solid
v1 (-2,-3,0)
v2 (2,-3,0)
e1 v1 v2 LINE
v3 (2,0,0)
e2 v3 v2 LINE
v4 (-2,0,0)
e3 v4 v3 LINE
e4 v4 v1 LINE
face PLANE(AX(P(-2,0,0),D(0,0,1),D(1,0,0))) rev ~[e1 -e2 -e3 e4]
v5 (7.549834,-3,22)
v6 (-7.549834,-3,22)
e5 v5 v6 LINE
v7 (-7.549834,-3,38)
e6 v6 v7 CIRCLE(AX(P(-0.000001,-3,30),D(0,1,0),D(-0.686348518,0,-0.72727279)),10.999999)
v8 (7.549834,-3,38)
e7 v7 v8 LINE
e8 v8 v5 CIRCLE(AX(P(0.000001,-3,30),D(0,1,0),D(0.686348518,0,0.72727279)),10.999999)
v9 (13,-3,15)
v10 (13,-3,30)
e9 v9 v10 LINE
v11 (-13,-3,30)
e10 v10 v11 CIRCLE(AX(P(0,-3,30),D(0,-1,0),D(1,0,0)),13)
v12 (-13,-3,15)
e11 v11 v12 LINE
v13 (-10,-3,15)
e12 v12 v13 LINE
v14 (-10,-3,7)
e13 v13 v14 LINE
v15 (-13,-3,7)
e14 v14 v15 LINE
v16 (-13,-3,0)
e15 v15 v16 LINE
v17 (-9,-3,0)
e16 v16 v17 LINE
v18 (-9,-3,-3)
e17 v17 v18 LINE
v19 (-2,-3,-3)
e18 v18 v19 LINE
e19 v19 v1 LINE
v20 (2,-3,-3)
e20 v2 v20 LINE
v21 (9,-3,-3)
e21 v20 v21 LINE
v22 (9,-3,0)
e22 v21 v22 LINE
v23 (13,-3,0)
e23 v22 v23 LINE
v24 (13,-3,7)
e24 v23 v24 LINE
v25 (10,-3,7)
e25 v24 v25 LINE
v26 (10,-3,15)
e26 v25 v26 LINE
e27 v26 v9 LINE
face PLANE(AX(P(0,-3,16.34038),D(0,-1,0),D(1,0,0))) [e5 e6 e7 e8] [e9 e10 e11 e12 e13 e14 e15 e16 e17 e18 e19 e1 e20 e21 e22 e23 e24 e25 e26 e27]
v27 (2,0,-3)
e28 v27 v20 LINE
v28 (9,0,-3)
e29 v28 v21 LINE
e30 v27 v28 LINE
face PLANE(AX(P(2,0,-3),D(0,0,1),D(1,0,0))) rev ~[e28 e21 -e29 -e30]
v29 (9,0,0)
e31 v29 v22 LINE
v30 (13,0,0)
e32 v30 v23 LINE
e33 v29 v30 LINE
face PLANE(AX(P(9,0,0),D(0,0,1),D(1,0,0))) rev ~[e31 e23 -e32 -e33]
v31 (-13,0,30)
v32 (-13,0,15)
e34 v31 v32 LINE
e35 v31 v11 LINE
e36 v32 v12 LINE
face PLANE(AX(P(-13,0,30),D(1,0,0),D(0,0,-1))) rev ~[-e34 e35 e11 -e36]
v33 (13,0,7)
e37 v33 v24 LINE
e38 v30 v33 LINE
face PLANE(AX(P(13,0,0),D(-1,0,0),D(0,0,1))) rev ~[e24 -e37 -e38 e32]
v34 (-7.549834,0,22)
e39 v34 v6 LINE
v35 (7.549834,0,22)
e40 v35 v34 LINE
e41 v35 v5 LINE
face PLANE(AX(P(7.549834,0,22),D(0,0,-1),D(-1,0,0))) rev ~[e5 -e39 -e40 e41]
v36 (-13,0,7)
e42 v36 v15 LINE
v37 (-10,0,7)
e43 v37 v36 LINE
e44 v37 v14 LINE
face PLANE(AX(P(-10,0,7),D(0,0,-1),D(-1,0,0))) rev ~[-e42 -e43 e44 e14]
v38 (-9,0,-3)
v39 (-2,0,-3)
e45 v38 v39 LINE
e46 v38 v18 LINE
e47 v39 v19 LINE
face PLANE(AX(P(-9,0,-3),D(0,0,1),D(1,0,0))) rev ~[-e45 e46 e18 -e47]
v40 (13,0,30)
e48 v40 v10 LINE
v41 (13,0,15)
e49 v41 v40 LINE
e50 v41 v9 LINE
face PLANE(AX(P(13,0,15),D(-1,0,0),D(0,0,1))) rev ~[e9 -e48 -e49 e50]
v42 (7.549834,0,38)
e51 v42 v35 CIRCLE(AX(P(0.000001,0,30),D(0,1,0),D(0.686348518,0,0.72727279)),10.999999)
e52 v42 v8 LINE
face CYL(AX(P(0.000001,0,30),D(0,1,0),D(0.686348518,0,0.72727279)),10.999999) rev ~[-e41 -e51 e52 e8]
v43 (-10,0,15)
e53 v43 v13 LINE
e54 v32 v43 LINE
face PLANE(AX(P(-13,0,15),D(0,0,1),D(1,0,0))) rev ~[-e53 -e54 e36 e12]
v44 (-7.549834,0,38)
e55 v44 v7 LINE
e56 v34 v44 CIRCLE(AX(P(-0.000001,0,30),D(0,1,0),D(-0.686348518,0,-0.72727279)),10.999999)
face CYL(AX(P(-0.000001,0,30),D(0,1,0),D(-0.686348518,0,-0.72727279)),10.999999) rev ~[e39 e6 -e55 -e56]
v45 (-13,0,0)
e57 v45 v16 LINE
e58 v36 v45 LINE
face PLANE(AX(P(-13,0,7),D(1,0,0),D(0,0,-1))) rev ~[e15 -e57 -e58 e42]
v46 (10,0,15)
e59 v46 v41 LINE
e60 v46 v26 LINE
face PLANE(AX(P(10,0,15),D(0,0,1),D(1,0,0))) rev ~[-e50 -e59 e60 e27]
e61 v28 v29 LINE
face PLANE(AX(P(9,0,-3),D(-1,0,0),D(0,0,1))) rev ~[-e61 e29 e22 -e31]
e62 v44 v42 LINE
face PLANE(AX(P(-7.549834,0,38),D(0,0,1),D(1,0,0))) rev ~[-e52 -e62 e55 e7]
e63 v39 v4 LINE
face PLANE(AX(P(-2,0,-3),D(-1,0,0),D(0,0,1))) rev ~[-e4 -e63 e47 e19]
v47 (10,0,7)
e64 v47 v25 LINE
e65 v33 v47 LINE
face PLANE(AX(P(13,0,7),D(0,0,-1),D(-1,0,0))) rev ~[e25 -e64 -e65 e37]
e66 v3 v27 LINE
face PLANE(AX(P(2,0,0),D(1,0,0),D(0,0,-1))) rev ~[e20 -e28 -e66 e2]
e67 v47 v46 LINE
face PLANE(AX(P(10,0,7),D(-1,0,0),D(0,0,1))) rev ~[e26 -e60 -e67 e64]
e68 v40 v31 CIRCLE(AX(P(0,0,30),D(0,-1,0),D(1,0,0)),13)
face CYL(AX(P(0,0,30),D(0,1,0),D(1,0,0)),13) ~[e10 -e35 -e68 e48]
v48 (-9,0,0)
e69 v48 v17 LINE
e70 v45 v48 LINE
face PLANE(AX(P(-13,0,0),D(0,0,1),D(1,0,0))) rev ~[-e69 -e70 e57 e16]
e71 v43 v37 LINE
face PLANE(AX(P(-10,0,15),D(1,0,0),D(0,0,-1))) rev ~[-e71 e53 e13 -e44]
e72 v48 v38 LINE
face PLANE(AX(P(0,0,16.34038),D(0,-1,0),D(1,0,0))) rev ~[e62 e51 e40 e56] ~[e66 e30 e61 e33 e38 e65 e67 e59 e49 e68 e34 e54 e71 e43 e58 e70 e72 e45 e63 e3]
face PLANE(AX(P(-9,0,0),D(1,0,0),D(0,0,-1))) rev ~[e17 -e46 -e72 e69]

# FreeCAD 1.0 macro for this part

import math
import FreeCAD as App
import Part
import Sketcher
from FreeCAD import Vector

doc = App.newDocument("Part")
body = doc.addObject("PartDesign::Body", "Body")

# Sketch on XZ plane
sketch1 = body.newObject("Sketcher::SketchObject", "Sketch")
sketch1.AttachmentSupport = (doc.getObject("XZ_Plane"), [""])
sketch1.MapMode = "FlatFace"
sketch1.addGeometry([
    Part.LineSegment(Vector(13, 15, 0), Vector(13, 30, 0)),  # 0
    Part.ArcOfCircle(Part.Circle(Vector(0, 30, 0), Vector(0, 0, 1), 13), math.radians(0), math.radians(180)),  # 1
    Part.LineSegment(Vector(-13, 30, 0), Vector(-13, 15, 0)),  # 2
    Part.LineSegment(Vector(-13, 15, 0), Vector(-10, 15, 0)),  # 3
    Part.LineSegment(Vector(-10, 15, 0), Vector(-10, 7, 0)),  # 4
    Part.LineSegment(Vector(-10, 7, 0), Vector(-13, 7, 0)),  # 5
    Part.LineSegment(Vector(-13, 7, 0), Vector(-13, 0, 0)),  # 6
    Part.LineSegment(Vector(-13, 0, 0), Vector(-9, 0, 0)),  # 7
    Part.LineSegment(Vector(-9, 0, 0), Vector(-9, -3, 0)),  # 8
    Part.LineSegment(Vector(-9, -3, 0), Vector(-2, -3, 0)),  # 9
    Part.LineSegment(Vector(-2, -3, 0), Vector(-2, 0, 0)),  # 10
    Part.LineSegment(Vector(-2, 0, 0), Vector(2, 0, 0)),  # 11
    Part.LineSegment(Vector(2, 0, 0), Vector(2, -3, 0)),  # 12
    Part.LineSegment(Vector(2, -3, 0), Vector(9, -3, 0)),  # 13
    Part.LineSegment(Vector(9, -3, 0), Vector(9, 0, 0)),  # 14
    Part.LineSegment(Vector(9, 0, 0), Vector(13, 0, 0)),  # 15
    Part.LineSegment(Vector(13, 0, 0), Vector(13, 7, 0)),  # 16
    Part.LineSegment(Vector(13, 7, 0), Vector(10, 7, 0)),  # 17
    Part.LineSegment(Vector(10, 7, 0), Vector(10, 15, 0)),  # 18
    Part.LineSegment(Vector(10, 15, 0), Vector(13, 15, 0)),  # 19
    Part.LineSegment(Vector(7.5, 22, 0), Vector(-7.5, 22, 0)),  # 20
    Part.ArcOfCircle(Part.Circle(Vector(0, 30, 0), Vector(0, 0, 1), 11), math.radians(133), math.radians(227)),  # 21
    Part.LineSegment(Vector(-7.5, 38, 0), Vector(7.5, 38, 0)),  # 22
    Part.ArcOfCircle(Part.Circle(Vector(0, 30, 0), Vector(0, 0, 1), 11), math.radians(-47), math.radians(47)),  # 23
], False)
sketch1.addConstraint([
    Sketcher.Constraint("Tangent", 0, 2, 1, 1),
    Sketcher.Constraint("Tangent", 1, 2, 2, 1),
    Sketcher.Constraint("Coincident", 2, 2, 3, 1),
    Sketcher.Constraint("Coincident", 3, 2, 4, 1),
    Sketcher.Constraint("Coincident", 4, 2, 5, 1),
    Sketcher.Constraint("Coincident", 5, 2, 6, 1),
    Sketcher.Constraint("Coincident", 6, 2, 7, 1),
    Sketcher.Constraint("Coincident", 7, 2, 8, 1),
    Sketcher.Constraint("Coincident", 8, 2, 9, 1),
    Sketcher.Constraint("Coincident", 9, 2, 10, 1),
    Sketcher.Constraint("Coincident", 10, 2, 11, 1),
    Sketcher.Constraint("Coincident", 11, 2, 12, 1),
    Sketcher.Constraint("Coincident", 12, 2, 13, 1),
    Sketcher.Constraint("Coincident", 13, 2, 14, 1),
    Sketcher.Constraint("Coincident", 14, 2, 15, 1),
    Sketcher.Constraint("Coincident", 15, 2, 16, 1),
    Sketcher.Constraint("Coincident", 16, 2, 17, 1),
    Sketcher.Constraint("Coincident", 17, 2, 18, 1),
    Sketcher.Constraint("Coincident", 18, 2, 19, 1),
    Sketcher.Constraint("Coincident", 19, 2, 0, 1),
    Sketcher.Constraint("Coincident", 20, 2, 21, 2),
    Sketcher.Constraint("Coincident", 21, 1, 22, 1),
    Sketcher.Constraint("Coincident", 22, 2, 23, 2),
    Sketcher.Constraint("Coincident", 23, 1, 20, 1),
    Sketcher.Constraint("Vertical", 0),
    Sketcher.Constraint("Vertical", 2),
    Sketcher.Constraint("Horizontal", 3),
    Sketcher.Constraint("Vertical", 4),
    Sketcher.Constraint("Horizontal", 5),
    Sketcher.Constraint("Vertical", 6),
    Sketcher.Constraint("Horizontal", 7),
    Sketcher.Constraint("Vertical", 8),
    Sketcher.Constraint("Horizontal", 9),
    Sketcher.Constraint("Vertical", 10),
    Sketcher.Constraint("Horizontal", 11),
    Sketcher.Constraint("Vertical", 12),
    Sketcher.Constraint("Horizontal", 13),
    Sketcher.Constraint("Vertical", 14),
    Sketcher.Constraint("Horizontal", 15),
    Sketcher.Constraint("Vertical", 16),
    Sketcher.Constraint("Horizontal", 17),
    Sketcher.Constraint("Vertical", 18),
    Sketcher.Constraint("Horizontal", 19),
    Sketcher.Constraint("Horizontal", 20),
    Sketcher.Constraint("Horizontal", 22),
    Sketcher.Constraint("Coincident", 21, 3, 1, 3),
    Sketcher.Constraint("Coincident", 23, 3, 1, 3),
    Sketcher.Constraint("Equal", 21, 23),
    Sketcher.Constraint("Symmetric", 10, 2, 11, 2, -1, 1),
    Sketcher.Constraint("Symmetric", 7, 2, 14, 2, -1, 1),
    Sketcher.Constraint("Symmetric", 6, 2, 15, 2, -2),
    Sketcher.Constraint("Symmetric", 4, 2, 17, 2, -2),
    Sketcher.Constraint("Symmetric", 2, 2, 19, 2, -2),
    Sketcher.Constraint("Horizontal", 9, 2, 12, 2),
    Sketcher.Constraint("Vertical", 2, 2, 5, 2),
    Sketcher.Constraint("Vertical", 20, 2, 21, 1),
    Sketcher.Constraint("Equal", 7, 11),
    Sketcher.Constraint("Equal", 13, 6),
    Sketcher.Constraint("Equal", 19, 8),
    Sketcher.Constraint("Radius", 1, 13.0),
    Sketcher.Constraint("Radius", 21, 10.999999),
    Sketcher.Constraint("DistanceX", 3, 1, 3, 2, 3.0),
    Sketcher.Constraint("DistanceX", 7, 1, 7, 2, 4.0),
    Sketcher.Constraint("DistanceY", 0, 1, 0, 2, 15.0),
    Sketcher.Constraint("DistanceY", 4, 2, 4, 1, 8.0),
    Sketcher.Constraint("DistanceY", -1, 1, 20, 2, 22.0),
])
pad1 = body.newObject("PartDesign::Pad", "Pad")
pad1.Profile = sketch1
pad1.Length = 3

doc.recompute()
